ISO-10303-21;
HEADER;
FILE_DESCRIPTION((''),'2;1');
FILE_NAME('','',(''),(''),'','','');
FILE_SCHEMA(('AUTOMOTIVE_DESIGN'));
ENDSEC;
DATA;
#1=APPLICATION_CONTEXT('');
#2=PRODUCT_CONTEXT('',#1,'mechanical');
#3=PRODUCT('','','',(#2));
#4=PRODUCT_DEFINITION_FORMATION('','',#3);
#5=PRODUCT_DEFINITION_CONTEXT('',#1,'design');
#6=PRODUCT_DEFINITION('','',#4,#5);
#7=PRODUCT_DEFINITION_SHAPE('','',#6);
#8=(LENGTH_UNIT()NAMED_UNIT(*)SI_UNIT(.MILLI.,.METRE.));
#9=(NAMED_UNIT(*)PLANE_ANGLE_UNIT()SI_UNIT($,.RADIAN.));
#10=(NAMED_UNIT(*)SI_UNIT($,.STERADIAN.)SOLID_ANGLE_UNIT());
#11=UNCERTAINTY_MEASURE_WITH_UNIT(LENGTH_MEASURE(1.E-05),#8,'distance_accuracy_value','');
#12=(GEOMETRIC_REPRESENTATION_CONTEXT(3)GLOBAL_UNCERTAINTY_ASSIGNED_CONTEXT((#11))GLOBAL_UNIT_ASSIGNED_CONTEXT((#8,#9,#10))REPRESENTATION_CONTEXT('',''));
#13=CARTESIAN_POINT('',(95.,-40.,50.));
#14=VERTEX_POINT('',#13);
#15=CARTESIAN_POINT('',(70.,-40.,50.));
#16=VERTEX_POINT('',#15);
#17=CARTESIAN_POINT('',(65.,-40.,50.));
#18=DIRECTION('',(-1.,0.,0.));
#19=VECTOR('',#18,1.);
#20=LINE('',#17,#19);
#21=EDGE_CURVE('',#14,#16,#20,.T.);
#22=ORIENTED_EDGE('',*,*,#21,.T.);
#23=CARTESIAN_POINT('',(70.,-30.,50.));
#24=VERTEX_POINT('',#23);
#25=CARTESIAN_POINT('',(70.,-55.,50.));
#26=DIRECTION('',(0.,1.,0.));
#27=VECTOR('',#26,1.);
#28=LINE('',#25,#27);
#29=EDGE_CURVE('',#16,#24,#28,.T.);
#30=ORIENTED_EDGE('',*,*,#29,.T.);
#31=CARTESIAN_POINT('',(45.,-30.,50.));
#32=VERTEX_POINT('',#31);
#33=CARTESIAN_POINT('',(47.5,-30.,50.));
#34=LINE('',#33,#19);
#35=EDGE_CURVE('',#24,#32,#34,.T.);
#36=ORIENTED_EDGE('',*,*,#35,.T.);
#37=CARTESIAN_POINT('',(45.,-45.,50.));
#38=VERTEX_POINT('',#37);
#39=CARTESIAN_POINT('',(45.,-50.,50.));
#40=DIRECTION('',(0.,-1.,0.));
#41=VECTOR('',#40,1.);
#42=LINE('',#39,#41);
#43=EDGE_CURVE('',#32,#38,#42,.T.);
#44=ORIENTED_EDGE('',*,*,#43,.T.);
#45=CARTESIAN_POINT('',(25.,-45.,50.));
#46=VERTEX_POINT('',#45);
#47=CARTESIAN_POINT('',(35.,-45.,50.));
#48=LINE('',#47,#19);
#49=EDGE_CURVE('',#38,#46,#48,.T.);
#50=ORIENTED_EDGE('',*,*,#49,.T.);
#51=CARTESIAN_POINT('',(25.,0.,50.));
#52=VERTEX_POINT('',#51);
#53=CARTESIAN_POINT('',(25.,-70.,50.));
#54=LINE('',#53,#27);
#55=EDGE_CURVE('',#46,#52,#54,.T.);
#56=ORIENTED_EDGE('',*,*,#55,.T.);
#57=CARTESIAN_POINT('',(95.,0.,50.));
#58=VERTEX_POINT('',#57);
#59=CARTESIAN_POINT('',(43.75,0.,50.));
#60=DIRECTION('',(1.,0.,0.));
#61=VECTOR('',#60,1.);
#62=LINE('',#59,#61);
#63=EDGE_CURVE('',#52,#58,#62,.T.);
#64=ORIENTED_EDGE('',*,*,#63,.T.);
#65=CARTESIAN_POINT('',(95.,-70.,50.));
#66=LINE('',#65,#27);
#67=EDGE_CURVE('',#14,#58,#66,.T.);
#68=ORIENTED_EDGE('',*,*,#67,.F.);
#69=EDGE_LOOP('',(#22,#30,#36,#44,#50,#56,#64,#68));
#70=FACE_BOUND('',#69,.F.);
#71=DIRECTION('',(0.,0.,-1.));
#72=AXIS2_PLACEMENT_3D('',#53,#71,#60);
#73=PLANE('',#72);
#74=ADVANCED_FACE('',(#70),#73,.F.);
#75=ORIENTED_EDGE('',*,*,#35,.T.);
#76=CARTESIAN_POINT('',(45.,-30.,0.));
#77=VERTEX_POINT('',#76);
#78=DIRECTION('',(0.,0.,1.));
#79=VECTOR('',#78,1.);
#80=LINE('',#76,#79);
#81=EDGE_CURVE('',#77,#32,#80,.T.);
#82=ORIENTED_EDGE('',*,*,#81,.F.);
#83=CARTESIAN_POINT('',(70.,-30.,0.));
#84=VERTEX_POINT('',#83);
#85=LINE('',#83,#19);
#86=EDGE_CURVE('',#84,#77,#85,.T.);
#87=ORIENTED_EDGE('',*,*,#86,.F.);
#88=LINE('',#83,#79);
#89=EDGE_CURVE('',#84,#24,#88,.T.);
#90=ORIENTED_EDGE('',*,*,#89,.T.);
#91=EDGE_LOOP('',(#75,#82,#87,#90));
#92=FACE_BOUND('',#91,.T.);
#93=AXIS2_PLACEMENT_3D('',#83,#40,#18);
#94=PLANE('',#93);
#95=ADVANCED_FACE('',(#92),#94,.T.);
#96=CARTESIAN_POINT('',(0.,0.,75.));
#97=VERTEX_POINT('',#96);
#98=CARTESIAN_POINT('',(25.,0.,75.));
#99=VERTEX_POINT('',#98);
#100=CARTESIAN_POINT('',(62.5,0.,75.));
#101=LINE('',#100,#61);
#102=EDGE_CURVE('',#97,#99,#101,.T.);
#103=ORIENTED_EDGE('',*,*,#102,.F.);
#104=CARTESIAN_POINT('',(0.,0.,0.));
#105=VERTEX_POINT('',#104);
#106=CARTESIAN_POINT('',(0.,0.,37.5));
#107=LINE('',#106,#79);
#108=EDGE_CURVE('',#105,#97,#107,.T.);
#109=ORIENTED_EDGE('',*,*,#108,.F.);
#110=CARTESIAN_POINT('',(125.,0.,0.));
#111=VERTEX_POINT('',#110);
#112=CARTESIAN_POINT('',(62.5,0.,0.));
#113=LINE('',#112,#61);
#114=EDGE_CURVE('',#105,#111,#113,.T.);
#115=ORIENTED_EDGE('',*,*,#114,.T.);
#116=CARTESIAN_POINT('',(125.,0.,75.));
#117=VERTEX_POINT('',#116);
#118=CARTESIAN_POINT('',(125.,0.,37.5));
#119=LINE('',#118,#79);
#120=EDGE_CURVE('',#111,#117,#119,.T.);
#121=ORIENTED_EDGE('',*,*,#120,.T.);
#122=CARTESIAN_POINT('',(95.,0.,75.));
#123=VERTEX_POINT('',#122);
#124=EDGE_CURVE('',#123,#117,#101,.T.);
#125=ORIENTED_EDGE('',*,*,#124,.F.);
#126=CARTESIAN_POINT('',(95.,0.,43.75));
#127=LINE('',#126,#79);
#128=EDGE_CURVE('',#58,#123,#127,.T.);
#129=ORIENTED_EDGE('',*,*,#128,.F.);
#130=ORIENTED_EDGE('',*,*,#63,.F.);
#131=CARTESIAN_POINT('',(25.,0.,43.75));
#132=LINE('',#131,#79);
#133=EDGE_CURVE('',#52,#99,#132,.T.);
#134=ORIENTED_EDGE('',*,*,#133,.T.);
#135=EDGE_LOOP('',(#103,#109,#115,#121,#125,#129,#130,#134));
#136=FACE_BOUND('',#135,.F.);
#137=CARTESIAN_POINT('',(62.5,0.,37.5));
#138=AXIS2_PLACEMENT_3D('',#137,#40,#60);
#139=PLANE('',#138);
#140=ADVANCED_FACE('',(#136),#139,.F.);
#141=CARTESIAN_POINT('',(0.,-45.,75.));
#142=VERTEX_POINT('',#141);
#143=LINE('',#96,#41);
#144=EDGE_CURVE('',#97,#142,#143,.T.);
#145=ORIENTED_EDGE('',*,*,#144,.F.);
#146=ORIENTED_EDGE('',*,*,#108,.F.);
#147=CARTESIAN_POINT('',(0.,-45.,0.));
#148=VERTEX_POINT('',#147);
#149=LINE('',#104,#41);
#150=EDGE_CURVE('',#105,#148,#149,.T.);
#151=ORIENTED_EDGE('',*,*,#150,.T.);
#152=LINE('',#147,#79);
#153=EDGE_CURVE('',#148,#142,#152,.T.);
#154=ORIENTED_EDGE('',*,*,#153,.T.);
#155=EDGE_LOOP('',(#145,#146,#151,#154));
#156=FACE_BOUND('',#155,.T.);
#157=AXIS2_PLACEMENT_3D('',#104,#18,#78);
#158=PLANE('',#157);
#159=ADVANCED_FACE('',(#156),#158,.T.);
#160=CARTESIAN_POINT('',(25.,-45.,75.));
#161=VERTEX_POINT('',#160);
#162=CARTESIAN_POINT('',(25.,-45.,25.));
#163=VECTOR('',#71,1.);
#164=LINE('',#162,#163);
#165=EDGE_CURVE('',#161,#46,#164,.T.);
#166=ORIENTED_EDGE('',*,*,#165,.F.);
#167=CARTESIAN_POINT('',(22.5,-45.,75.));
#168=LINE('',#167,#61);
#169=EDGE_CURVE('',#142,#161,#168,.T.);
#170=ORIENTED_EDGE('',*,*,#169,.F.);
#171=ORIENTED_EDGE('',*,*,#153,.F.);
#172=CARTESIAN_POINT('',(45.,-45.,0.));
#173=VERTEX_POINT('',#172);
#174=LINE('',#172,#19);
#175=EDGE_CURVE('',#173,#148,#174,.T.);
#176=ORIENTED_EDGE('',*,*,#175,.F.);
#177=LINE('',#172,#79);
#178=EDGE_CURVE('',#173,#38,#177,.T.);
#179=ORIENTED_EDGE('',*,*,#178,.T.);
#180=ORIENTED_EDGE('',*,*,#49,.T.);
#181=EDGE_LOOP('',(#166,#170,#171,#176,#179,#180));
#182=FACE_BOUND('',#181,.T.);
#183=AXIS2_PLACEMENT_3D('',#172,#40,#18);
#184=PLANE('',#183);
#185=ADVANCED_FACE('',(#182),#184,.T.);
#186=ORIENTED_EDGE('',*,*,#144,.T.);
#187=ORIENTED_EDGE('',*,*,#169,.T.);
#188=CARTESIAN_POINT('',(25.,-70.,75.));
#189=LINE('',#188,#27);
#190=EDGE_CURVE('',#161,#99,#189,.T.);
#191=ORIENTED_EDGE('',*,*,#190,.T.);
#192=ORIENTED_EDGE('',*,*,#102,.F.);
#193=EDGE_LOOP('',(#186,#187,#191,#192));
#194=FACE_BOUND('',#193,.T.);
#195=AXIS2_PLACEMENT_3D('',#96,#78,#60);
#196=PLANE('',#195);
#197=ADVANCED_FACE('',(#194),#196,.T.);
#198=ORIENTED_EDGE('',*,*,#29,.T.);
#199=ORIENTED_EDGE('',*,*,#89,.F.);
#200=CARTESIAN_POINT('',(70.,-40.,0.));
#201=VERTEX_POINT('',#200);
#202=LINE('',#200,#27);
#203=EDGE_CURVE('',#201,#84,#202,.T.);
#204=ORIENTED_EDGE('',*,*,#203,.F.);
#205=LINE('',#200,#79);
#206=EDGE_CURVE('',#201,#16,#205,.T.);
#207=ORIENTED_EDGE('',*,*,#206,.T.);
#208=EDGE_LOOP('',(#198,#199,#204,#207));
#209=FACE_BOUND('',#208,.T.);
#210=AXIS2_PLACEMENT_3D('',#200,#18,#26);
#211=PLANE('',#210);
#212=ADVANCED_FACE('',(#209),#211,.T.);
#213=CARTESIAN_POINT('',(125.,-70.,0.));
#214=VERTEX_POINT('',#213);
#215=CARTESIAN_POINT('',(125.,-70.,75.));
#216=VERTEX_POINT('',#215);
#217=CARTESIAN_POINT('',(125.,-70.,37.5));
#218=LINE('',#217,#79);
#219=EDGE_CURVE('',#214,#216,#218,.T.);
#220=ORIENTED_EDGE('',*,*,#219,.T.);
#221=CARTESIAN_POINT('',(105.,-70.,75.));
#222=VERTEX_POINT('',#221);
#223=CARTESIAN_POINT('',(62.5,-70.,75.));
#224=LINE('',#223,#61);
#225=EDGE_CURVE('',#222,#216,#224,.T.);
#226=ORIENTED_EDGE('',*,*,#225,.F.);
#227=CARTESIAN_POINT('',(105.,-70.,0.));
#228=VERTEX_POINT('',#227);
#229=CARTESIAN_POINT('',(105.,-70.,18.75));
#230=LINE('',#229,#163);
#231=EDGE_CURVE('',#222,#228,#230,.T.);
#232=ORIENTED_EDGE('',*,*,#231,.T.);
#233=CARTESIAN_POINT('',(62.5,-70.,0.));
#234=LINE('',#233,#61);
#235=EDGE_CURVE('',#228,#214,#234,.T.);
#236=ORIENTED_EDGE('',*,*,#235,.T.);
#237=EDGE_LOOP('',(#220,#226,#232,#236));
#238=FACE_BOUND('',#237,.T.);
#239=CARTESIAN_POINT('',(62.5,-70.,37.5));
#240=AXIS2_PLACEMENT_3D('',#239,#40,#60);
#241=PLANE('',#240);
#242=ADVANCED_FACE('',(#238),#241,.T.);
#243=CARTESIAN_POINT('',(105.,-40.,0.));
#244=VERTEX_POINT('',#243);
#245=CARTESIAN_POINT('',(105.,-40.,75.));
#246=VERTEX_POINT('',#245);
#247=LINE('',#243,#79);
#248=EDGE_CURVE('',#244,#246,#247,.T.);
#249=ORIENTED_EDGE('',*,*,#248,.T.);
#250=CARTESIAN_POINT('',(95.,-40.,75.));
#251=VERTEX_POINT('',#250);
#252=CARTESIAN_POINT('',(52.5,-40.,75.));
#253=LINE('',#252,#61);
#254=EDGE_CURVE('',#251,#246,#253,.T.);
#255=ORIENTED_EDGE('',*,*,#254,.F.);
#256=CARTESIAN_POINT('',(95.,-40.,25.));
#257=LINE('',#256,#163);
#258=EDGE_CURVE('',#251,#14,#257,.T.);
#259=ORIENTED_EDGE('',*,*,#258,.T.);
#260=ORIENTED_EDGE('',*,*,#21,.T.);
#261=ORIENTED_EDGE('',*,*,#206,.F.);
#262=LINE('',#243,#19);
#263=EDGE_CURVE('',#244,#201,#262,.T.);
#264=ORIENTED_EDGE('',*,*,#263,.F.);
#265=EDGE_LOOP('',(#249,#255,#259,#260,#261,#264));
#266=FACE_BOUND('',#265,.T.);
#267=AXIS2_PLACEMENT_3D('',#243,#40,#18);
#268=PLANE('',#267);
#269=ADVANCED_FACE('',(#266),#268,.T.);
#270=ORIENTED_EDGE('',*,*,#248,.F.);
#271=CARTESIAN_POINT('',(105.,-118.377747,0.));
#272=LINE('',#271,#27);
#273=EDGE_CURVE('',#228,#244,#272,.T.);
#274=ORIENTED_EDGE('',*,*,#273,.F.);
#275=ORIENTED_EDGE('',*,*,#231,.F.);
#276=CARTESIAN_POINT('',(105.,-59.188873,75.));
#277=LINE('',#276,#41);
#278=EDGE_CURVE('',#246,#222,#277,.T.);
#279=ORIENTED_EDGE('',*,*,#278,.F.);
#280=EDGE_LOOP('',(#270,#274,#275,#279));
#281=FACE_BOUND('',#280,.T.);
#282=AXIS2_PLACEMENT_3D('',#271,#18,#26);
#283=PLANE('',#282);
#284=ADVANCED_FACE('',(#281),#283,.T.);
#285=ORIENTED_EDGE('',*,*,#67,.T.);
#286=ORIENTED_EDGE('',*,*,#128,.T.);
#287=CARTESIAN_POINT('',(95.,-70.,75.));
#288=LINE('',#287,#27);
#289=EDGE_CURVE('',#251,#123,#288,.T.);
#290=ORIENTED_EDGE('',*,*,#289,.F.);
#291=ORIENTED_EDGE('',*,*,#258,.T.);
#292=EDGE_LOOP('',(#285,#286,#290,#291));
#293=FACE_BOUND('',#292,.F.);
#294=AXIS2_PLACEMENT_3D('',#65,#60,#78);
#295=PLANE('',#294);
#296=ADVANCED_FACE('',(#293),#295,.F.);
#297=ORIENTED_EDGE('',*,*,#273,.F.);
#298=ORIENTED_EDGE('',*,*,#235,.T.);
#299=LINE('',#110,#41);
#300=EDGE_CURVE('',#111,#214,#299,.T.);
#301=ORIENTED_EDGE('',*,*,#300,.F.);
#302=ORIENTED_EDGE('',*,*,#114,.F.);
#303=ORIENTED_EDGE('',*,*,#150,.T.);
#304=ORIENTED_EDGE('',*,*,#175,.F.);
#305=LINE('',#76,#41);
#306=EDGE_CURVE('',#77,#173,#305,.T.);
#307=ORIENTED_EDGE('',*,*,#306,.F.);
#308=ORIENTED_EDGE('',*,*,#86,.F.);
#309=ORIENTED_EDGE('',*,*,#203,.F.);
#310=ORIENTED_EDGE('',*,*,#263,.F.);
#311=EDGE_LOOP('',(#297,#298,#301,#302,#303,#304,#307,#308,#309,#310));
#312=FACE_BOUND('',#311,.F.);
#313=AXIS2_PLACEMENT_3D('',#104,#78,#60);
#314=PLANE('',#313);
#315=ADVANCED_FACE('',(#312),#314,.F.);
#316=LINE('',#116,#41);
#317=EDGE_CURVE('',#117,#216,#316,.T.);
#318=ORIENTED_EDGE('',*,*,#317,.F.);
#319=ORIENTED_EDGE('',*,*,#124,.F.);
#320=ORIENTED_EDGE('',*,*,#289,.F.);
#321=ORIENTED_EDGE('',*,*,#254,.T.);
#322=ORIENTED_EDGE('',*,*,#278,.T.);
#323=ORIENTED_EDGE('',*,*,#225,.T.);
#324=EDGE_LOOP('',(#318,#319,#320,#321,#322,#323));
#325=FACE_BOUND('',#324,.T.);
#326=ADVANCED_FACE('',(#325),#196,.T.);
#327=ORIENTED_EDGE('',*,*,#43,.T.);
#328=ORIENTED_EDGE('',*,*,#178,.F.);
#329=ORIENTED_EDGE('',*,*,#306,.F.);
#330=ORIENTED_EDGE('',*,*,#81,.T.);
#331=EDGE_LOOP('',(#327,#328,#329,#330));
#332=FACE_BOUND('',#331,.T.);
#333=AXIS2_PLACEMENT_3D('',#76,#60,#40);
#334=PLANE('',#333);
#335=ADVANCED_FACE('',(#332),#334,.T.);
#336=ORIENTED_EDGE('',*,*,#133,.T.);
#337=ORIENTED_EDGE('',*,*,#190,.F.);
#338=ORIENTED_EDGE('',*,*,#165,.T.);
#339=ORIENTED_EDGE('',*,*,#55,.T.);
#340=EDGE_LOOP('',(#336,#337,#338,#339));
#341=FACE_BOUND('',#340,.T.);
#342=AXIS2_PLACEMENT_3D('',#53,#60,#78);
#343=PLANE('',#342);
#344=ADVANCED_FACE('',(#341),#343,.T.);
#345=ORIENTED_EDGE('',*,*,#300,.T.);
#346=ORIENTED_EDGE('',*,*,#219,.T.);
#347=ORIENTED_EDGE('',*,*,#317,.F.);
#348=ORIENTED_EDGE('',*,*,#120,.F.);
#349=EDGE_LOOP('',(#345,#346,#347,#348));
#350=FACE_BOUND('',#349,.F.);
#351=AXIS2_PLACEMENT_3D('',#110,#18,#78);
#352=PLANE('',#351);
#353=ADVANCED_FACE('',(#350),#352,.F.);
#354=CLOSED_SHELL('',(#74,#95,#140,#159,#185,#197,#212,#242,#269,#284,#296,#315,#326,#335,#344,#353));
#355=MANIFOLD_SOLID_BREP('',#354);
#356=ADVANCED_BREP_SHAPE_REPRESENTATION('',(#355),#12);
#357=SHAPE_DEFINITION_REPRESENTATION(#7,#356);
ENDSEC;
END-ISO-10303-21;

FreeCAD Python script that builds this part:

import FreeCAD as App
import Part
import Sketcher
from FreeCAD import Vector
Q = App.Units.Quantity

doc = App.newDocument("Part")
body = doc.addObject("PartDesign::Body", "Body")

# Sketch on XZ plane
sketch1 = doc.addObject("Sketcher::SketchObject", "Sketch")
body.addObject(sketch1)
sketch1.AttachmentSupport = (doc.XZ_Plane, [""])
sketch1.MapMode = "FlatFace"
sketch1.addGeometry(Part.LineSegment(Vector(0, 75, 0), Vector(0, 0, 0)), False)
sketch1.addGeometry(Part.LineSegment(Vector(0, 0, 0), Vector(125, 0, 0)), False)
sketch1.addGeometry(Part.LineSegment(Vector(125, 0, 0), Vector(125, 75, 0)), False)
sketch1.addGeometry(Part.LineSegment(Vector(125, 75, 0), Vector(0, 75, 0)), False)
sketch1.addConstraint(Sketcher.Constraint("Coincident", 0, 2, 1, 1))
sketch1.addConstraint(Sketcher.Constraint("Coincident", 1, 2, 2, 1))
sketch1.addConstraint(Sketcher.Constraint("Coincident", 2, 2, 3, 1))
sketch1.addConstraint(Sketcher.Constraint("Coincident", 3, 2, 0, 1))
sketch1.addConstraint(Sketcher.Constraint("Vertical", 0))
sketch1.addConstraint(Sketcher.Constraint("Horizontal", 1))
sketch1.addConstraint(Sketcher.Constraint("Vertical", 2))
sketch1.addConstraint(Sketcher.Constraint("Horizontal", 3))
sketch1.addConstraint(Sketcher.Constraint("Coincident", 0, 2, -1, 1))
sketch1.addConstraint(Sketcher.Constraint("DistanceX", 1, 1, 1, 2, Q("125 mm")))
sketch1.addConstraint(Sketcher.Constraint("DistanceY", 0, 2, 0, 1, Q("75 mm")))
pad1 = doc.addObject("PartDesign::Pad", "Pad")
body.addObject(pad1)
pad1.Profile = sketch1
pad1.Length = 70

# Sketch on XZ plane
sketch2 = doc.addObject("Sketcher::SketchObject", "Sketch001")
body.addObject(sketch2)
sketch2.AttachmentSupport = (doc.XZ_Plane, [""])
sketch2.MapMode = "FlatFace"
sketch2.AttachmentOffset = App.Placement(Vector(0, 0, 70), App.Rotation())
sketch2.addGeometry(Part.LineSegment(Vector(25, 75, 0), Vector(25, 50, 0)), False)
sketch2.addGeometry(Part.LineSegment(Vector(25, 50, 0), Vector(95, 50, 0)), False)
sketch2.addGeometry(Part.LineSegment(Vector(95, 50, 0), Vector(95, 75, 0)), False)
sketch2.addGeometry(Part.LineSegment(Vector(95, 75, 0), Vector(25, 75, 0)), False)
sketch2.addConstraint(Sketcher.Constraint("Coincident", 0, 2, 1, 1))
sketch2.addConstraint(Sketcher.Constraint("Coincident", 1, 2, 2, 1))
sketch2.addConstraint(Sketcher.Constraint("Coincident", 2, 2, 3, 1))
sketch2.addConstraint(Sketcher.Constraint("Coincident", 3, 2, 0, 1))
sketch2.addConstraint(Sketcher.Constraint("Vertical", 0))
sketch2.addConstraint(Sketcher.Constraint("Horizontal", 1))
sketch2.addConstraint(Sketcher.Constraint("Vertical", 2))
sketch2.addConstraint(Sketcher.Constraint("Horizontal", 3))
sketch2.addConstraint(Sketcher.Constraint("DistanceX", 1, 1, 1, 2, Q("70 mm")))
sketch2.addConstraint(Sketcher.Constraint("DistanceY", 0, 2, 0, 1, Q("25 mm")))
sketch2.addConstraint(Sketcher.Constraint("DistanceX", -1, 1, 0, 2, Q("25 mm")))
sketch2.addConstraint(Sketcher.Constraint("DistanceY", -1, 1, 0, 2, Q("50 mm")))
pocket1 = doc.addObject("PartDesign::Pocket", "Pocket")
body.addObject(pocket1)
pocket1.Profile = sketch2
pocket1.Type = "ThroughAll"

# Sketch on XY plane
sketch3 = doc.addObject("Sketcher::SketchObject", "Sketch002")
body.addObject(sketch3)
sketch3.AttachmentSupport = (doc.XY_Plane, [""])
sketch3.MapMode = "FlatFace"
sketch3.addGeometry(Part.LineSegment(Vector(105, -118, 0), Vector(105, -40, 0)), False)
sketch3.addGeometry(Part.LineSegment(Vector(105, -40, 0), Vector(70, -40, 0)), False)
sketch3.addGeometry(Part.LineSegment(Vector(70, -40, 0), Vector(70, -30, 0)), False)
sketch3.addGeometry(Part.LineSegment(Vector(70, -30, 0), Vector(45, -30, 0)), False)
sketch3.addGeometry(Part.LineSegment(Vector(45, -30, 0), Vector(45, -45, 0)), False)
sketch3.addGeometry(Part.LineSegment(Vector(45, -45, 0), Vector(0, -45, 0)), False)
sketch3.addGeometry(Part.LineSegment(Vector(0, -45, 0), Vector(0, -118, 0)), False)
sketch3.addGeometry(Part.LineSegment(Vector(0, -118, 0), Vector(105, -118, 0)), False)
sketch3.addConstraint(Sketcher.Constraint("Coincident", 0, 2, 1, 1))
sketch3.addConstraint(Sketcher.Constraint("Coincident", 1, 2, 2, 1))
sketch3.addConstraint(Sketcher.Constraint("Coincident", 2, 2, 3, 1))
sketch3.addConstraint(Sketcher.Constraint("Coincident", 3, 2, 4, 1))
sketch3.addConstraint(Sketcher.Constraint("Coincident", 4, 2, 5, 1))
sketch3.addConstraint(Sketcher.Constraint("Coincident", 5, 2, 6, 1))
sketch3.addConstraint(Sketcher.Constraint("Coincident", 6, 2, 7, 1))
sketch3.addConstraint(Sketcher.Constraint("Coincident", 7, 2, 0, 1))
sketch3.addConstraint(Sketcher.Constraint("Vertical", 0))
sketch3.addConstraint(Sketcher.Constraint("Horizontal", 1))
sketch3.addConstraint(Sketcher.Constraint("Vertical", 2))
sketch3.addConstraint(Sketcher.Constraint("Horizontal", 3))
sketch3.addConstraint(Sketcher.Constraint("Vertical", 4))
sketch3.addConstraint(Sketcher.Constraint("Horizontal", 5))
sketch3.addConstraint(Sketcher.Constraint("Vertical", 6))
sketch3.addConstraint(Sketcher.Constraint("Horizontal", 7))
sketch3.addConstraint(Sketcher.Constraint("PointOnObject", 5, 2, -2))
sketch3.addConstraint(Sketcher.Constraint("DistanceX", 1, 2, 1, 1, Q("35 mm")))
sketch3.addConstraint(Sketcher.Constraint("DistanceX", 3, 2, 3, 1, Q("25 mm")))
sketch3.addConstraint(Sketcher.Constraint("DistanceX", 5, 2, 5, 1, Q("45 mm")))
sketch3.addConstraint(Sketcher.Constraint("DistanceY", 2, 1, 2, 2, Q("10 mm")))
sketch3.addConstraint(Sketcher.Constraint("DistanceY", 4, 2, 4, 1, Q("15 mm")))
sketch3.addConstraint(Sketcher.Constraint("DistanceY", 0, 2, -1, 1, Q("40 mm")))
sketch3.addConstraint(Sketcher.Constraint("DistanceY", 0, 1, 0, 2, Q("78.377747 mm")))
pocket2 = doc.addObject("PartDesign::Pocket", "Pocket001")
body.addObject(pocket2)
pocket2.Profile = sketch3
pocket2.Type = "ThroughAll"
pocket2.Reversed = True

doc.recompute()
